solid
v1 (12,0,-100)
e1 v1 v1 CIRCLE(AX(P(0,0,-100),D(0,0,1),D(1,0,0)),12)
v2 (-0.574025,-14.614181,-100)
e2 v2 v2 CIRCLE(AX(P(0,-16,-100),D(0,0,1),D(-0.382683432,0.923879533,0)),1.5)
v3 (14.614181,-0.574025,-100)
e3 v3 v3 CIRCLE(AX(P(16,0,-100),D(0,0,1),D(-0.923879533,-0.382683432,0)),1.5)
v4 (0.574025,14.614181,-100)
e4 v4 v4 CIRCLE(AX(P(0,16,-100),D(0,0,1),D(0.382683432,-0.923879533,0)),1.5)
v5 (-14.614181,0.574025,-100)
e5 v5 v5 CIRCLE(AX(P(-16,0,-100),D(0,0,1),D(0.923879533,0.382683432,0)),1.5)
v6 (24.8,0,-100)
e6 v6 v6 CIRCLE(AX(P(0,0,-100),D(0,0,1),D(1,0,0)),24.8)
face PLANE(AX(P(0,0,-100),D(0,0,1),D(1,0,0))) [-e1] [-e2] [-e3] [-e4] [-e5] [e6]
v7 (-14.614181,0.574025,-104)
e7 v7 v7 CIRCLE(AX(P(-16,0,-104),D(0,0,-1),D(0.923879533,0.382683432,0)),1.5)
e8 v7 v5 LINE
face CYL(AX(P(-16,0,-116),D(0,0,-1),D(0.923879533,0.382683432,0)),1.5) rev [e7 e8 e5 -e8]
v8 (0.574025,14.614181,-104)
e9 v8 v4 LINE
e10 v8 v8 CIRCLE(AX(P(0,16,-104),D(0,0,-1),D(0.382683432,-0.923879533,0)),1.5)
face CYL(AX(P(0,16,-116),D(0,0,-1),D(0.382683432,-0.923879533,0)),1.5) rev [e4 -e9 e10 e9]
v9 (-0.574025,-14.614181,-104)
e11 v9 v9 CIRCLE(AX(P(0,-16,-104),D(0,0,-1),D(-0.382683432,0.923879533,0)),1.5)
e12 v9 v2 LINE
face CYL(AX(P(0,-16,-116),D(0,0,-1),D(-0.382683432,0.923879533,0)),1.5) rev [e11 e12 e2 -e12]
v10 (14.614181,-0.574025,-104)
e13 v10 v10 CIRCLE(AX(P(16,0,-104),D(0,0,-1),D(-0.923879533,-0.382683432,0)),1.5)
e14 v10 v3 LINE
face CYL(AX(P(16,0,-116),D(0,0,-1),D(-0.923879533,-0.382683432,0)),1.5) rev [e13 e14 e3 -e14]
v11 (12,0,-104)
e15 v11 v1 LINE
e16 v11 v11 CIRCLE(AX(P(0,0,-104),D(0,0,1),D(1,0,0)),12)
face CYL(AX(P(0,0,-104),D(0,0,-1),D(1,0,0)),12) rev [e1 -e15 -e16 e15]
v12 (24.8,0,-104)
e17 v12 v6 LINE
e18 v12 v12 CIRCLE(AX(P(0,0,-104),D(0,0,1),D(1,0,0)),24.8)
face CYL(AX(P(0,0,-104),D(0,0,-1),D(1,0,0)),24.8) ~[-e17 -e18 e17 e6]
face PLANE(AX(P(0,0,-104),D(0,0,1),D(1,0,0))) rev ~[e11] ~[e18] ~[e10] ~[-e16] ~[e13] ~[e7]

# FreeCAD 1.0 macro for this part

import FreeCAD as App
import Part
import Sketcher
Q = App.Units.Quantity

doc = App.newDocument("Part")
params = doc.addObject("Spreadsheet::Sheet", "Params")
for row, (alias, value) in enumerate([
    ("sketch1_diameter", "3 mm"),
    ("pad1_length", "16 mm"),
    ("sketch2_diameter", "3 mm"),
    ("pad2_length", "16 mm"),
    ("sketch3_diameter", "3 mm"),
    ("pad3_length", "16 mm"),
    ("sketch4_diameter", "3 mm"),
    ("pad4_length", "16 mm"),
    ("sketch5_diameter", "24 mm"),
    ("sketch5_diameter2", "49.6 mm"),
    ("pad5_length", "4 mm"),
], start=1):
    params.set(f"A{row}", alias)
    params.set(f"B{row}", "=" + value)
    params.setAlias(f"B{row}", alias)

body = doc.addObject("PartDesign::Body", "Body")

# Sketch on XY plane
sketch1 = body.newObject("Sketcher::SketchObject", "Sketch")
sketch1.AttachmentSupport = (doc.getObject("XY_Plane"), [""])
sketch1.MapMode = "FlatFace"
sketch1.addGeometry(Part.Circle(App.Vector(0, 0, 0), App.Vector(0, 0, 1), 1.5), False)
sketch1.addConstraint([
    Sketcher.Constraint("Coincident", 0, 3, -1, 1),
    Sketcher.Constraint("Diameter", 0, Q("3 mm")),
])
sketch1.setExpression("Constraints[1]", "Params.sketch1_diameter")
pad1 = body.newObject("PartDesign::Pad", "Pad")
pad1.Profile = sketch1
pad1.setExpression("Length", "Params.pad1_length")
body2 = doc.addObject("PartDesign::Body", "Body001")
doc.recompute()

body.Placement = App.Placement(App.Vector(0, 16, 2), App.Rotation(App.Vector(0, 0, -1), 67.5))
boolean = body2.newObject("PartDesign::Boolean", "Boolean")
boolean.Type = "Fuse"
boolean.addObjects([body])
body3 = doc.addObject("PartDesign::Body", "Body002")

# Sketch on XY plane
sketch2 = body3.newObject("Sketcher::SketchObject", "Sketch001")
sketch2.AttachmentSupport = (doc.getObject("XY_Plane002"), [""])
sketch2.MapMode = "FlatFace"
sketch2.addGeometry(Part.Circle(App.Vector(0, 0, 0), App.Vector(0, 0, 1), 1.5), False)
sketch2.addConstraint([
    Sketcher.Constraint("Coincident", 0, 3, -1, 1),
    Sketcher.Constraint("Diameter", 0, Q("3 mm")),
])
sketch2.setExpression("Constraints[1]", "Params.sketch2_diameter")
pad2 = body3.newObject("PartDesign::Pad", "Pad001")
pad2.Profile = sketch2
pad2.setExpression("Length", "Params.pad2_length")
body4 = doc.addObject("PartDesign::Body", "Body003")
doc.recompute()

body3.Placement = App.Placement(App.Vector(-16, 0, 2), App.Rotation(App.Vector(0, 0, 1), 22.5))
boolean2 = body4.newObject("PartDesign::Boolean", "Boolean001")
boolean2.Type = "Fuse"
boolean2.addObjects([body3])
body5 = doc.addObject("PartDesign::Body", "Body004")

# Sketch on XY plane
sketch3 = body5.newObject("Sketcher::SketchObject", "Sketch002")
sketch3.AttachmentSupport = (doc.getObject("XY_Plane004"), [""])
sketch3.MapMode = "FlatFace"
sketch3.addGeometry(Part.Circle(App.Vector(0, 0, 0), App.Vector(0, 0, 1), 1.5), False)
sketch3.addConstraint([
    Sketcher.Constraint("Coincident", 0, 3, -1, 1),
    Sketcher.Constraint("Diameter", 0, Q("3 mm")),
])
sketch3.setExpression("Constraints[1]", "Params.sketch3_diameter")
pad3 = body5.newObject("PartDesign::Pad", "Pad002")
pad3.Profile = sketch3
pad3.setExpression("Length", "Params.pad3_length")
body6 = doc.addObject("PartDesign::Body", "Body005")
doc.recompute()

body5.Placement = App.Placement(App.Vector(0, -16, 2), App.Rotation(App.Vector(0, 0, 1), 112.5))
boolean3 = body6.newObject("PartDesign::Boolean", "Boolean002")
boolean3.Type = "Fuse"
boolean3.addObjects([body5])
body7 = doc.addObject("PartDesign::Body", "Body006")

# Sketch on XY plane
sketch4 = body7.newObject("Sketcher::SketchObject", "Sketch003")
sketch4.AttachmentSupport = (doc.getObject("XY_Plane006"), [""])
sketch4.MapMode = "FlatFace"
sketch4.addGeometry(Part.Circle(App.Vector(0, 0, 0), App.Vector(0, 0, 1), 1.5), False)
sketch4.addConstraint([
    Sketcher.Constraint("Coincident", 0, 3, -1, 1),
    Sketcher.Constraint("Diameter", 0, Q("3 mm")),
])
sketch4.setExpression("Constraints[1]", "Params.sketch4_diameter")
pad4 = body7.newObject("PartDesign::Pad", "Pad003")
pad4.Profile = sketch4
pad4.setExpression("Length", "Params.pad4_length")
body8 = doc.addObject("PartDesign::Body", "Body007")
body8.AllowCompound = True
doc.recompute()

body7.Placement = App.Placement(App.Vector(16, 0, 2), App.Rotation(App.Vector(0, 0, 1), 202.5))
boolean4 = body8.newObject("PartDesign::Boolean", "Boolean003")
boolean4.Type = "Fuse"
boolean4.addObjects([body7])
doc.recompute()

boolean5 = body8.newObject("PartDesign::Boolean", "Boolean004")
boolean5.Type = "Fuse"
boolean5.addObjects([body2])
doc.recompute()

boolean6 = body8.newObject("PartDesign::Boolean", "Boolean005")
boolean6.Type = "Fuse"
boolean6.addObjects([body4])
doc.recompute()

boolean7 = body8.newObject("PartDesign::Boolean", "Boolean006")
boolean7.Type = "Fuse"
boolean7.addObjects([body6])
body9 = doc.addObject("PartDesign::Body", "Body008")
body9.AllowCompound = True
doc.recompute()

body8.Placement = App.Placement(App.Vector(0, 0, -117), App.Rotation(App.Vector(0, 0, 1), 0))
boolean8 = body9.newObject("PartDesign::Boolean", "Boolean007")
boolean8.Type = "Fuse"
boolean8.addObjects([body8])
body10 = doc.addObject("PartDesign::Body", "Body009")

# Sketch on XY plane
sketch5 = body10.newObject("Sketcher::SketchObject", "Sketch004")
sketch5.AttachmentSupport = (doc.getObject("XY_Plane009"), [""])
sketch5.MapMode = "FlatFace"
sketch5.AttachmentOffset = App.Placement(App.Vector(0, 0, -103), App.Rotation())
sketch5.addGeometry([
    Part.Circle(App.Vector(0, 0, 0), App.Vector(0, 0, 1), 25),
    Part.Circle(App.Vector(0, 0, 0), App.Vector(0, 0, 1), 12),
], False)
sketch5.addConstraint([
    Sketcher.Constraint("Coincident", 0, 3, -1, 1),
    Sketcher.Constraint("Coincident", 1, 3, -1, 1),
    Sketcher.Constraint("Diameter", 1, Q("24 mm")),
    Sketcher.Constraint("Diameter", 0, Q("49.6 mm")),
])
sketch5.setExpression("Constraints[2]", "Params.sketch5_diameter")
sketch5.setExpression("Constraints[3]", "Params.sketch5_diameter2")
pad5 = body10.newObject("PartDesign::Pad", "Pad004")
pad5.Profile = sketch5
pad5.setExpression("Length", "Params.pad5_length")
doc.recompute()

boolean9 = body10.newObject("PartDesign::Boolean", "Boolean008")
boolean9.Type = "Cut"
boolean9.addObjects([body9])
body11 = doc.addObject("PartDesign::Body", "Body010")
doc.recompute()

body10.Placement = App.Placement(App.Vector(0, 0, -1), App.Rotation(App.Vector(0, 0, 1), 0))
boolean10 = body11.newObject("PartDesign::Boolean", "Boolean009")
boolean10.Type = "Fuse"
boolean10.addObjects([body10])

doc.recompute()
